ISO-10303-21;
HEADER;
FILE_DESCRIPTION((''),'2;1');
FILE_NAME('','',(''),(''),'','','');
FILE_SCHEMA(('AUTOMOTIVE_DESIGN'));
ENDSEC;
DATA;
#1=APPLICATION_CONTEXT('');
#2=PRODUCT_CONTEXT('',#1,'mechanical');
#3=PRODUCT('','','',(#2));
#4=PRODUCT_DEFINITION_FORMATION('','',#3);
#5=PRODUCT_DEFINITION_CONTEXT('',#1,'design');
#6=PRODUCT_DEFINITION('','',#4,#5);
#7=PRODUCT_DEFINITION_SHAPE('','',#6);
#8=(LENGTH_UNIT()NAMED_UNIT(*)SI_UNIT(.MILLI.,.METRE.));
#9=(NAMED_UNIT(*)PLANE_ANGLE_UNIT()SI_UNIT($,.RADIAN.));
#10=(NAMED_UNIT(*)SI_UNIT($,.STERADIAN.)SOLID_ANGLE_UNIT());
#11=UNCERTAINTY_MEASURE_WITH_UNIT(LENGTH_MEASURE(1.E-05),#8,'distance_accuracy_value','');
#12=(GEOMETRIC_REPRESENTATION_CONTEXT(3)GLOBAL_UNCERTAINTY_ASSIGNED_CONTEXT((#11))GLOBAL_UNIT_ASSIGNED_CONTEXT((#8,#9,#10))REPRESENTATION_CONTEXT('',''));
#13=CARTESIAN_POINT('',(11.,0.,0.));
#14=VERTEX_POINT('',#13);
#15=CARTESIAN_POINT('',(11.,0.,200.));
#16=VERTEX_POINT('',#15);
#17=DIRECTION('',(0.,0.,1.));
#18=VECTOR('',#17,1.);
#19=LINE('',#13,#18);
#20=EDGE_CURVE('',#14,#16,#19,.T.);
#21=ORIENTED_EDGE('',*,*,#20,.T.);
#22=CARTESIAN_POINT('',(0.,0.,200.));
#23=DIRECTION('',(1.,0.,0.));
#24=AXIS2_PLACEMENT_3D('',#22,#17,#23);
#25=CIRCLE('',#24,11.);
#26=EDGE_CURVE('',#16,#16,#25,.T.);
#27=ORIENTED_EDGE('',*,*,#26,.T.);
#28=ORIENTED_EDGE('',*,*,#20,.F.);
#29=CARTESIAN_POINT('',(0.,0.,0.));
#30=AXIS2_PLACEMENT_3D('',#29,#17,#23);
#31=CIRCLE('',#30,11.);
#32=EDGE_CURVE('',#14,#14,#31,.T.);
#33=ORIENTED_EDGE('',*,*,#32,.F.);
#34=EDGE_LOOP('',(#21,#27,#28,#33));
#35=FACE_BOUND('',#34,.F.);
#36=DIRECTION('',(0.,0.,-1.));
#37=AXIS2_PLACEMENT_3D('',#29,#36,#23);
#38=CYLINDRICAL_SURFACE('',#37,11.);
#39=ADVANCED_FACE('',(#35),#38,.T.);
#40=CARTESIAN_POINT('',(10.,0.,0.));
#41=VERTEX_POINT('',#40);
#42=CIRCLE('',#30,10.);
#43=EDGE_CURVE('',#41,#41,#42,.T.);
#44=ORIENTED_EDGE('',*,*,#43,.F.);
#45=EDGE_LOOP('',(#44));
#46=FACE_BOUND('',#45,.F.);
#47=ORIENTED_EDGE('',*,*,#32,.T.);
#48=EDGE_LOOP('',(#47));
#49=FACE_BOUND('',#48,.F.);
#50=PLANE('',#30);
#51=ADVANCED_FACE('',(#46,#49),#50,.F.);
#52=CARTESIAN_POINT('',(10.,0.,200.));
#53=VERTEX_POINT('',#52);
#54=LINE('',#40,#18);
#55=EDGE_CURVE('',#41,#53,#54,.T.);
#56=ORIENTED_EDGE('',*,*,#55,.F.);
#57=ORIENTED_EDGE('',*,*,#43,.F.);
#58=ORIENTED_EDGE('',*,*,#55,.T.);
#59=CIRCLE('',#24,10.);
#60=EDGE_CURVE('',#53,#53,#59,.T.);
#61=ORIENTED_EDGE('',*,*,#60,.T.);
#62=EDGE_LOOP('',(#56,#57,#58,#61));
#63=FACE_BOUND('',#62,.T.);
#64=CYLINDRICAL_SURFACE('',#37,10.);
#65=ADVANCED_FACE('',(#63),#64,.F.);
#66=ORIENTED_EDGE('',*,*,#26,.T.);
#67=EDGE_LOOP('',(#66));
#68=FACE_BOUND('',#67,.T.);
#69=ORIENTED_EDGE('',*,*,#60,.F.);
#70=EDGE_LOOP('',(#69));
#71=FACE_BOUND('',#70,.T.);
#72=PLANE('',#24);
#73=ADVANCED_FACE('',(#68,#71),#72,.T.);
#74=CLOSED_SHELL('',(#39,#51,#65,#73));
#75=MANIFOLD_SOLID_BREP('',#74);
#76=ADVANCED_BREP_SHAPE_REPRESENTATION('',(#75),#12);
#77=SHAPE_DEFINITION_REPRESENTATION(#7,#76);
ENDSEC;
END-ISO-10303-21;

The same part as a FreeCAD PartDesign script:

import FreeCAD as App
import Part
import Sketcher
from FreeCAD import Vector

doc = App.newDocument("Part")
body = doc.addObject("PartDesign::Body", "Body")

# Sketch on XY plane
sketch1 = body.newObject("Sketcher::SketchObject", "Sketch")
sketch1.AttachmentSupport = (doc.getObject("XY_Plane"), [""])
sketch1.MapMode = "FlatFace"
sketch1.addGeometry([
    Part.Circle(Vector(0, 0, 0), Vector(0, 0, 1), 11),
    Part.Circle(Vector(0, 0, 0), Vector(0, 0, 1), 10),
], False)
sketch1.addConstraint([
    Sketcher.Constraint("Coincident", 0, 3, -1, 1),
    Sketcher.Constraint("Coincident", 1, 3, -1, 1),
    Sketcher.Constraint("Diameter", 0, 22.0),
    Sketcher.Constraint("Diameter", 1, 20.0),
])
pad1 = body.newObject("PartDesign::Pad", "Pad")
pad1.Profile = sketch1
pad1.Length = 200

doc.recompute()
